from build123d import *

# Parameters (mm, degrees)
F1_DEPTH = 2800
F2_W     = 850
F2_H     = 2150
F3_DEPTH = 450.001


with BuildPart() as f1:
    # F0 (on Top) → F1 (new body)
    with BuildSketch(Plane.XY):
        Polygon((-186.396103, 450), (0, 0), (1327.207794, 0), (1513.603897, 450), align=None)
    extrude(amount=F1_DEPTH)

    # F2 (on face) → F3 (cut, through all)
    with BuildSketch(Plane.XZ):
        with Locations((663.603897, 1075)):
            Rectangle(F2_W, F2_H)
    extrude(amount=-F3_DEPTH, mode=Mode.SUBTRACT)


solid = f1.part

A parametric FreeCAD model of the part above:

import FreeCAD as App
import Part
import Sketcher

V = App.Vector
Q = App.Units.Quantity

doc = App.newDocument("Part")
body = doc.addObject("PartDesign::Body", "Body")

# Sketch on XY plane
sketch1 = body.newObject("Sketcher::SketchObject", "Sketch")
sketch1.AttachmentSupport = (doc.getObject("XY_Plane"), [""])
sketch1.MapMode = "FlatFace"
sketch1.addGeometry(Part.LineSegment(V(-186.396103, 450, 0), V(0, 0, 0)), False)
sketch1.addGeometry(Part.LineSegment(V(0, 0, 0), V(1327.207794, 0, 0)), False)
sketch1.addGeometry(Part.LineSegment(V(1327.207794, 0, 0), V(1513.603897, 450, 0)), False)
sketch1.addGeometry(Part.LineSegment(V(1513.603897, 450, 0), V(-186.396103, 450, 0)), False)
sketch1.addConstraint(Sketcher.Constraint("Coincident", 0, 2, 1, 1))
sketch1.addConstraint(Sketcher.Constraint("Coincident", 1, 2, 2, 1))
sketch1.addConstraint(Sketcher.Constraint("Coincident", 2, 2, 3, 1))
sketch1.addConstraint(Sketcher.Constraint("Coincident", 3, 2, 0, 1))
sketch1.addConstraint(Sketcher.Constraint("Horizontal", 1))
sketch1.addConstraint(Sketcher.Constraint("Horizontal", 3))
sketch1.addConstraint(Sketcher.Constraint("Coincident", 0, 2, -1, 1))
sketch1.addConstraint(Sketcher.Constraint("Equal", 0, 2))
sketch1.addConstraint(Sketcher.Constraint("DistanceX", 3, 2, 3, 1, Q("1700 mm")))
sketch1.addConstraint(Sketcher.Constraint("DistanceY", -1, 1, 2, 2, Q("450 mm")))
sketch1.addConstraint(Sketcher.Constraint("Angle", 0, Q("-67.5 deg")))
pad1 = body.newObject("PartDesign::Pad", "Pad")
pad1.Profile = sketch1
pad1.Length = 2800

# Sketch on XZ plane
sketch2 = body.newObject("Sketcher::SketchObject", "Sketch001")
sketch2.AttachmentSupport = (doc.getObject("XZ_Plane"), [""])
sketch2.MapMode = "FlatFace"
sketch2.addGeometry(Part.LineSegment(V(238.603897, 2150, 0), V(238.603897, 0, 0)), False)
sketch2.addGeometry(Part.LineSegment(V(238.603897, 0, 0), V(1088.603897, 0, 0)), False)
sketch2.addGeometry(Part.LineSegment(V(1088.603897, 0, 0), V(1088.603897, 2150, 0)), False)
sketch2.addGeometry(Part.LineSegment(V(1088.603897, 2150, 0), V(238.603897, 2150, 0)), False)
sketch2.addConstraint(Sketcher.Constraint("Coincident", 0, 2, 1, 1))
sketch2.addConstraint(Sketcher.Constraint("Coincident", 1, 2, 2, 1))
sketch2.addConstraint(Sketcher.Constraint("Coincident", 2, 2, 3, 1))
sketch2.addConstraint(Sketcher.Constraint("Coincident", 3, 2, 0, 1))
sketch2.addConstraint(Sketcher.Constraint("Vertical", 0))
sketch2.addConstraint(Sketcher.Constraint("Horizontal", 1))
sketch2.addConstraint(Sketcher.Constraint("Vertical", 2))
sketch2.addConstraint(Sketcher.Constraint("Horizontal", 3))
sketch2.addConstraint(Sketcher.Constraint("PointOnObject", 0, 2, -1))
sketch2.addConstraint(Sketcher.Constraint("DistanceX", 1, 1, 1, 2, Q("850 mm")))
sketch2.addConstraint(Sketcher.Constraint("DistanceY", 0, 2, 0, 1, Q("2150 mm")))
sketch2.addConstraint(Sketcher.Constraint("DistanceX", -1, 1, 0, 2, Q("238.603897 mm")))
pocket1 = body.newObject("PartDesign::Pocket", "Pocket")
pocket1.Profile = sketch2
pocket1.Type = "ThroughAll"

doc.recompute()
